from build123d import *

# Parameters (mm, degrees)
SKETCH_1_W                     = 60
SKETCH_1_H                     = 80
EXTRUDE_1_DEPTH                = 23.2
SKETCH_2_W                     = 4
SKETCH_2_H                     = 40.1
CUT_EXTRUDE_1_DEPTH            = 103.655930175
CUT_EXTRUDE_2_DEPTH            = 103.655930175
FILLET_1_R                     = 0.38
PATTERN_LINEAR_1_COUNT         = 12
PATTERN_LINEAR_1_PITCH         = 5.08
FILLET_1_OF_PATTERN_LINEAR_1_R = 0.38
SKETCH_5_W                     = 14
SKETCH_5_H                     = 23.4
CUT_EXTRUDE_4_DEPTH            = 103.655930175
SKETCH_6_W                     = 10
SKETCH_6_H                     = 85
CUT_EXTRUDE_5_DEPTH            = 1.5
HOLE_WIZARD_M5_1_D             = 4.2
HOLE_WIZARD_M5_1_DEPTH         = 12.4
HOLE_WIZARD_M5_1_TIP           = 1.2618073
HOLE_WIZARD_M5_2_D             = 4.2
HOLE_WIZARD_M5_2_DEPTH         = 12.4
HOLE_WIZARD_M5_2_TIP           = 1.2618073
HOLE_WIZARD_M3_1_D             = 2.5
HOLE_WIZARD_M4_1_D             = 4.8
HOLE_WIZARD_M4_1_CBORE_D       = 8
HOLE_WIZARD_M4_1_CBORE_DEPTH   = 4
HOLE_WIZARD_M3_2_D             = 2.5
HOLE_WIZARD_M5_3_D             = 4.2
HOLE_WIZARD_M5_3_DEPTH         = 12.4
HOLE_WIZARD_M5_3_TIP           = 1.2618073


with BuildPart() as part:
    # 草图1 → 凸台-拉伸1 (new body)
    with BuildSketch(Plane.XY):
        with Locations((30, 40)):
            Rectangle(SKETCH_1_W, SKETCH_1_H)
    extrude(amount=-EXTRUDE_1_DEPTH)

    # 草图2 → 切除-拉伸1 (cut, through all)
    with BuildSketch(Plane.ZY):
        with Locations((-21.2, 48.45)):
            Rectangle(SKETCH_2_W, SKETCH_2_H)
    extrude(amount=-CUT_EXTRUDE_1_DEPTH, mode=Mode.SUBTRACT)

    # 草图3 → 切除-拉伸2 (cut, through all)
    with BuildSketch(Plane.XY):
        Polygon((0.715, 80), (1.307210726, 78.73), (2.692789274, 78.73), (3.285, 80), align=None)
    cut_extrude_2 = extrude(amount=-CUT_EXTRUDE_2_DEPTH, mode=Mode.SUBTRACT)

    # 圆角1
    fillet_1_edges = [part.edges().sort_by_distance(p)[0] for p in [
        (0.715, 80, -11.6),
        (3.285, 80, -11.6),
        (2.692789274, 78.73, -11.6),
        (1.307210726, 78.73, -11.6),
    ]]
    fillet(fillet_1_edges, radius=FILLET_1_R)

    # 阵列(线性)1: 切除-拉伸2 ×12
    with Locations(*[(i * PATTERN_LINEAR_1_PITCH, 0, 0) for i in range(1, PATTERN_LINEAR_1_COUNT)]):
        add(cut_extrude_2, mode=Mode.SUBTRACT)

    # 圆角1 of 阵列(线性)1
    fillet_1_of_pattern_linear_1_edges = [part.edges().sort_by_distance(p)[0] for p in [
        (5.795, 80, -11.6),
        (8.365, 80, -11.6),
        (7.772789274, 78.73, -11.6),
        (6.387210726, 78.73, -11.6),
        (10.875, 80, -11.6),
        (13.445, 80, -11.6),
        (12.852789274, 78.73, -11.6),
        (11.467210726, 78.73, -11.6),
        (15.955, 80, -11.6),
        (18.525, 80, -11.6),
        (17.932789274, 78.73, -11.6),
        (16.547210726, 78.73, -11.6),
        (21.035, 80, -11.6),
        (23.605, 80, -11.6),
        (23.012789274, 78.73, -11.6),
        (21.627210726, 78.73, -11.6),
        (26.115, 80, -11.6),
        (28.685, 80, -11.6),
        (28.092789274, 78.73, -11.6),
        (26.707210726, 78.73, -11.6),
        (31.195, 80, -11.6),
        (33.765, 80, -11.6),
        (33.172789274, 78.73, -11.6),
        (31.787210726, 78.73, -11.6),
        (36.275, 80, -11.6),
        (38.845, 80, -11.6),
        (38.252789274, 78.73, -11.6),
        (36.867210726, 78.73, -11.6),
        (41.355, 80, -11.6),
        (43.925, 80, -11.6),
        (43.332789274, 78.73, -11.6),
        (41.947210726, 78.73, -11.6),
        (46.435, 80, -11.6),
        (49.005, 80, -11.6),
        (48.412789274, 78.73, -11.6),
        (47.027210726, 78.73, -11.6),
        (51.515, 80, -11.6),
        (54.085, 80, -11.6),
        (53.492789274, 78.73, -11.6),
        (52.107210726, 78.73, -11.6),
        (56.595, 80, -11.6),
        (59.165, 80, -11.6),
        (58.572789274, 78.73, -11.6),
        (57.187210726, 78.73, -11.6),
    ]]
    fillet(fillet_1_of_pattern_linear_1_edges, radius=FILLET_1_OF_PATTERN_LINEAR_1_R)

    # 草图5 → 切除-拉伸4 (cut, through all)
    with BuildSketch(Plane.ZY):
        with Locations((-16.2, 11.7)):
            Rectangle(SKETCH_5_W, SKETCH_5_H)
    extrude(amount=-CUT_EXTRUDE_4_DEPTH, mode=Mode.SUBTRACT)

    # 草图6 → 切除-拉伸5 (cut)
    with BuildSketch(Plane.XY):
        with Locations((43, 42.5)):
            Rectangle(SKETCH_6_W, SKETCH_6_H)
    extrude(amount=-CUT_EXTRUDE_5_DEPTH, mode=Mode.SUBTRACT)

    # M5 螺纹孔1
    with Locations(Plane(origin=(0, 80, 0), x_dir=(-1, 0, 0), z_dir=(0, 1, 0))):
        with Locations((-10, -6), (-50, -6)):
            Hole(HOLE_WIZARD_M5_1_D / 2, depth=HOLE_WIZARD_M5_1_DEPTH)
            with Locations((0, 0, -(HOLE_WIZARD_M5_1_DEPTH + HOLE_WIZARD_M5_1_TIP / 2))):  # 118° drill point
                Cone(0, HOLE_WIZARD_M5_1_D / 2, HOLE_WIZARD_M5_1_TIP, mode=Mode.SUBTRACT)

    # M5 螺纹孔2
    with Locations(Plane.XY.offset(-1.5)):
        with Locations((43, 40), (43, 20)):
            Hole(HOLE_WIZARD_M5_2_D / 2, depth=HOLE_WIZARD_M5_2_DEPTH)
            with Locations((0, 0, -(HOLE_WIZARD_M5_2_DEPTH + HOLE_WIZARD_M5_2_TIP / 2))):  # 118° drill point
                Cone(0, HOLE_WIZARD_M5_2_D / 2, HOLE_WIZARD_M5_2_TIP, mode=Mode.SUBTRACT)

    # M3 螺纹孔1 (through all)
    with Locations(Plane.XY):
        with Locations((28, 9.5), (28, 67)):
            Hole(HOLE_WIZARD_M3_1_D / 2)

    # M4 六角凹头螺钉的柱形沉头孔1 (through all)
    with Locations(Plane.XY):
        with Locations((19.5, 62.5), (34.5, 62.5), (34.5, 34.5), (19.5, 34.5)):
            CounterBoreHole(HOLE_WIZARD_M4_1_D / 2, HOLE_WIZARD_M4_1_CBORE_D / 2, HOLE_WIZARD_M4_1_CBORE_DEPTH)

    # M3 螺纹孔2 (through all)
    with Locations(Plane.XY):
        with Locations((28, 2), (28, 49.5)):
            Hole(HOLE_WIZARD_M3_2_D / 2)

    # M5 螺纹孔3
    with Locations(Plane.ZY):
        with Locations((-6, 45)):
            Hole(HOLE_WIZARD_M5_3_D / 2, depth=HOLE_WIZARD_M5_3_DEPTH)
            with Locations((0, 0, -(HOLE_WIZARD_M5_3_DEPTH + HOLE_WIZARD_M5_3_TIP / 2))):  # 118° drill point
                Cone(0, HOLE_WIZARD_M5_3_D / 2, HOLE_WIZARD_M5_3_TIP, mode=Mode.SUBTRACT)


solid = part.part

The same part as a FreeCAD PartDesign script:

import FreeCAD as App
import Part
import Sketcher
Q = App.Units.Quantity


def edges_at(feature, points):
    """Names of the edges that pass closest to the given points."""
    edges = feature.Shape.Edges
    near = lambda p: min(range(len(edges)), key=lambda i: edges[i].distToShape(Part.Vertex(*p))[0])
    return sorted({f"Edge{near(p) + 1}" for p in points})

doc = App.newDocument("Part")
params = doc.addObject("Spreadsheet::Sheet", "Params")
for row, (alias, value) in enumerate([
    ("sketch1_width", "60 mm"),
    ("sketch1_height", "80 mm"),
    ("pad1_length", "23.2 mm"),
    ("sketch2_height", "4 mm"),
    ("sketch2_width", "40.1 mm"),
    ("sketch3_width", "2.57 mm"),
    ("fillet_radius", "0.38 mm"),
    ("linearpattern_pitch", "5.08 mm"),
    ("fillet2_radius", "0.38 mm"),
    ("sketch4_height", "14 mm"),
    ("sketch4_width", "23.4 mm"),
    ("sketch5_width", "10 mm"),
    ("sketch5_height", "85 mm"),
    ("pocket4_length", "1.5 mm"),
    ("sketch6_diameter", "4.2 mm"),
    ("hole_diameter", "4.2 mm"),
    ("hole_depth", "12.4 mm"),
    ("sketch7_diameter", "4.2 mm"),
    ("hole2_diameter", "4.2 mm"),
    ("hole2_depth", "12.4 mm"),
    ("sketch8_diameter", "2.5 mm"),
    ("hole3_diameter", "2.5 mm"),
    ("sketch9_diameter", "4.8 mm"),
    ("hole4_diameter", "4.8 mm"),
    ("hole4_cbore_diameter", "8 mm"),
    ("hole4_cbore_depth", "4 mm"),
    ("sketch10_diameter", "2.5 mm"),
    ("hole5_diameter", "2.5 mm"),
    ("sketch11_diameter", "4.2 mm"),
    ("hole6_diameter", "4.2 mm"),
    ("hole6_depth", "12.4 mm"),
], start=1):
    params.set(f"A{row}", alias)
    params.set(f"B{row}", "=" + value)
    params.setAlias(f"B{row}", alias)

body = doc.addObject("PartDesign::Body", "Body")

sketch1 = doc.addObject("Sketcher::SketchObject", "Sketch")
body.addObject(sketch1)
sketch1.AttachmentSupport = (doc.XY_Plane, [""])
sketch1.MapMode = "FlatFace"
sketch1.addGeometry(Part.LineSegment(App.Vector(0, 80, 0), App.Vector(0, 0, 0)), False)
sketch1.addGeometry(Part.LineSegment(App.Vector(0, 0, 0), App.Vector(60, 0, 0)), False)
sketch1.addGeometry(Part.LineSegment(App.Vector(60, 0, 0), App.Vector(60, 80, 0)), False)
sketch1.addGeometry(Part.LineSegment(App.Vector(60, 80, 0), App.Vector(0, 80, 0)), False)
sketch1.addConstraint(Sketcher.Constraint("Coincident", 0, 2, 1, 1))
sketch1.addConstraint(Sketcher.Constraint("Coincident", 1, 2, 2, 1))
sketch1.addConstraint(Sketcher.Constraint("Coincident", 2, 2, 3, 1))
sketch1.addConstraint(Sketcher.Constraint("Coincident", 3, 2, 0, 1))
sketch1.addConstraint(Sketcher.Constraint("Vertical", 0))
sketch1.addConstraint(Sketcher.Constraint("Horizontal", 1))
sketch1.addConstraint(Sketcher.Constraint("Vertical", 2))
sketch1.addConstraint(Sketcher.Constraint("Horizontal", 3))
sketch1.addConstraint(Sketcher.Constraint("Coincident", 0, 2, -1, 1))
sketch1.addConstraint(Sketcher.Constraint("DistanceX", 1, 1, 1, 2, 60.0))
sketch1.addConstraint(Sketcher.Constraint("DistanceY", 0, 2, 0, 1, 80.0))
sketch1.setExpression("Constraints[9]", "Params.sketch1_width")
sketch1.setExpression("Constraints[10]", "Params.sketch1_height")
pad1 = doc.addObject("PartDesign::Pad", "Pad")
body.addObject(pad1)
pad1.Profile = sketch1
pad1.setExpression("Length", "Params.pad1_length")
pad1.Reversed = True

sketch2 = doc.addObject("Sketcher::SketchObject", "Sketch001")
body.addObject(sketch2)
sketch2.AttachmentSupport = (doc.YZ_Plane, [""])
sketch2.MapMode = "FlatFace"
sketch2.addGeometry(Part.LineSegment(App.Vector(68.5, -23.2, 0), App.Vector(28.4, -23.2, 0)), False)
sketch2.addGeometry(Part.LineSegment(App.Vector(28.4, -23.2, 0), App.Vector(28.4, -19.2, 0)), False)
sketch2.addGeometry(Part.LineSegment(App.Vector(28.4, -19.2, 0), App.Vector(68.5, -19.2, 0)), False)
sketch2.addGeometry(Part.LineSegment(App.Vector(68.5, -19.2, 0), App.Vector(68.5, -23.2, 0)), False)
sketch2.addConstraint(Sketcher.Constraint("Coincident", 0, 2, 1, 1))
sketch2.addConstraint(Sketcher.Constraint("Coincident", 1, 2, 2, 1))
sketch2.addConstraint(Sketcher.Constraint("Coincident", 2, 2, 3, 1))
sketch2.addConstraint(Sketcher.Constraint("Coincident", 3, 2, 0, 1))
sketch2.addConstraint(Sketcher.Constraint("Horizontal", 0))
sketch2.addConstraint(Sketcher.Constraint("Vertical", 1))
sketch2.addConstraint(Sketcher.Constraint("Horizontal", 2))
sketch2.addConstraint(Sketcher.Constraint("Vertical", 3))
sketch2.addConstraint(Sketcher.Constraint("DistanceY", 1, 1, 1, 2, 4.0))
sketch2.addConstraint(Sketcher.Constraint("DistanceX", 0, 2, 0, 1, 40.1))
sketch2.addConstraint(Sketcher.Constraint("DistanceX", -1, 1, 0, 2, 28.4))
sketch2.addConstraint(Sketcher.Constraint("DistanceY", 0, 2, -1, 1, 23.2))
sketch2.setExpression("Constraints[8]", "Params.sketch2_height")
sketch2.setExpression("Constraints[9]", "Params.sketch2_width")
pocket1 = doc.addObject("PartDesign::Pocket", "Pocket")
body.addObject(pocket1)
pocket1.Profile = sketch2
pocket1.Type = "ThroughAll"
pocket1.Reversed = True

sketch3 = doc.addObject("Sketcher::SketchObject", "Sketch002")
body.addObject(sketch3)
sketch3.AttachmentSupport = (doc.XY_Plane, [""])
sketch3.MapMode = "FlatFace"
sketch3.addGeometry(Part.LineSegment(App.Vector(0.715, 80, 0), App.Vector(1.307211, 78.73, 0)), False)
sketch3.addGeometry(Part.LineSegment(App.Vector(1.307211, 78.73, 0), App.Vector(2.692789, 78.73, 0)), False)
sketch3.addGeometry(Part.LineSegment(App.Vector(2.692789, 78.73, 0), App.Vector(3.285, 80, 0)), False)
sketch3.addGeometry(Part.LineSegment(App.Vector(3.285, 80, 0), App.Vector(0.715, 80, 0)), False)
sketch3.addConstraint(Sketcher.Constraint("Coincident", 0, 2, 1, 1))
sketch3.addConstraint(Sketcher.Constraint("Coincident", 1, 2, 2, 1))
sketch3.addConstraint(Sketcher.Constraint("Coincident", 2, 2, 3, 1))
sketch3.addConstraint(Sketcher.Constraint("Coincident", 3, 2, 0, 1))
sketch3.addConstraint(Sketcher.Constraint("Horizontal", 1))
sketch3.addConstraint(Sketcher.Constraint("Horizontal", 3))
sketch3.addConstraint(Sketcher.Constraint("Equal", 0, 2))
sketch3.addConstraint(Sketcher.Constraint("Angle", 0, Q("-65 deg")))
sketch3.addConstraint(Sketcher.Constraint("DistanceY", -1, 1, 2, 2, 80.0))
sketch3.addConstraint(Sketcher.Constraint("DistanceX", 3, 2, 3, 1, 2.57))
sketch3.addConstraint(Sketcher.Constraint("DistanceY", -1, 1, 0, 2, 78.73))
sketch3.addConstraint(Sketcher.Constraint("DistanceX", -1, 1, 2, 2, 3.285))
sketch3.setExpression("Constraints[9]", "Params.sketch3_width")
pocket2 = doc.addObject("PartDesign::Pocket", "Pocket001")
body.addObject(pocket2)
pocket2.Profile = sketch3
pocket2.Type = "ThroughAll"
doc.recompute()

fillet = doc.addObject("PartDesign::Fillet", "Fillet")
body.addObject(fillet)
fillet.Base = (pocket2, edges_at(pocket2, [
    (0.715, 80, -11.6),
    (3.285, 80, -11.6),
    (2.693, 78.73, -11.6),
    (1.307, 78.73, -11.6),
]))
fillet.setExpression("Radius", "Params.fillet_radius")
doc.recompute()

linearpattern = doc.addObject("PartDesign::LinearPattern", "LinearPattern")
body.addObject(linearpattern)
linearpattern.Originals = [pocket2]
linearpattern.Direction = (doc.X_Axis, [""])
linearpattern.Mode = "offset"
linearpattern.setExpression("Offset", "Params.linearpattern_pitch")
linearpattern.Occurrences = 12
body.Tip = linearpattern
doc.recompute()

fillet2 = doc.addObject("PartDesign::Fillet", "Fillet001")
body.addObject(fillet2)
fillet2.Base = (linearpattern, edges_at(linearpattern, [
    (5.795, 80, -11.6),
    (8.365, 80, -11.6),
    (7.773, 78.73, -11.6),
    (6.387, 78.73, -11.6),
    (10.875, 80, -11.6),
    (13.445, 80, -11.6),
    (12.853, 78.73, -11.6),
    (11.467, 78.73, -11.6),
    (15.955, 80, -11.6),
    (18.525, 80, -11.6),
    (17.933, 78.73, -11.6),
    (16.547, 78.73, -11.6),
    (21.035, 80, -11.6),
    (23.605, 80, -11.6),
    (23.013, 78.73, -11.6),
    (21.627, 78.73, -11.6),
    (26.115, 80, -11.6),
    (28.685, 80, -11.6),
    (28.093, 78.73, -11.6),
    (26.707, 78.73, -11.6),
    (31.195, 80, -11.6),
    (33.765, 80, -11.6),
    (33.173, 78.73, -11.6),
    (31.787, 78.73, -11.6),
    (36.275, 80, -11.6),
    (38.845, 80, -11.6),
    (38.253, 78.73, -11.6),
    (36.867, 78.73, -11.6),
    (41.355, 80, -11.6),
    (43.925, 80, -11.6),
    (43.333, 78.73, -11.6),
    (41.947, 78.73, -11.6),
    (46.435, 80, -11.6),
    (49.005, 80, -11.6),
    (48.413, 78.73, -11.6),
    (47.027, 78.73, -11.6),
    (51.515, 80, -11.6),
    (54.085, 80, -11.6),
    (53.493, 78.73, -11.6),
    (52.107, 78.73, -11.6),
    (56.595, 80, -11.6),
    (59.165, 80, -11.6),
    (58.573, 78.73, -11.6),
    (57.187, 78.73, -11.6),
]))
fillet2.setExpression("Radius", "Params.fillet2_radius")

sketch4 = doc.addObject("Sketcher::SketchObject", "Sketch003")
body.addObject(sketch4)
sketch4.AttachmentSupport = (doc.YZ_Plane, [""])
sketch4.MapMode = "FlatFace"
sketch4.addGeometry(Part.LineSegment(App.Vector(23.4, -23.2, 0), App.Vector(0, -23.2, 0)), False)
sketch4.addGeometry(Part.LineSegment(App.Vector(0, -23.2, 0), App.Vector(0, -9.2, 0)), False)
sketch4.addGeometry(Part.LineSegment(App.Vector(0, -9.2, 0), App.Vector(23.4, -9.2, 0)), False)
sketch4.addGeometry(Part.LineSegment(App.Vector(23.4, -9.2, 0), App.Vector(23.4, -23.2, 0)), False)
sketch4.addConstraint(Sketcher.Constraint("Coincident", 0, 2, 1, 1))
sketch4.addConstraint(Sketcher.Constraint("Coincident", 1, 2, 2, 1))
sketch4.addConstraint(Sketcher.Constraint("Coincident", 2, 2, 3, 1))
sketch4.addConstraint(Sketcher.Constraint("Coincident", 3, 2, 0, 1))
sketch4.addConstraint(Sketcher.Constraint("Horizontal", 0))
sketch4.addConstraint(Sketcher.Constraint("Vertical", 1))
sketch4.addConstraint(Sketcher.Constraint("Horizontal", 2))
sketch4.addConstraint(Sketcher.Constraint("Vertical", 3))
sketch4.addConstraint(Sketcher.Constraint("PointOnObject", 0, 2, -2))
sketch4.addConstraint(Sketcher.Constraint("DistanceY", 1, 1, 1, 2, 14.0))
sketch4.addConstraint(Sketcher.Constraint("DistanceX", 0, 2, 0, 1, 23.4))
sketch4.addConstraint(Sketcher.Constraint("DistanceY", 0, 2, -1, 1, 23.2))
sketch4.setExpression("Constraints[9]", "Params.sketch4_height")
sketch4.setExpression("Constraints[10]", "Params.sketch4_width")
pocket3 = doc.addObject("PartDesign::Pocket", "Pocket002")
body.addObject(pocket3)
pocket3.Profile = sketch4
pocket3.Type = "ThroughAll"
pocket3.Reversed = True

sketch5 = doc.addObject("Sketcher::SketchObject", "Sketch004")
body.addObject(sketch5)
sketch5.AttachmentSupport = (doc.XY_Plane, [""])
sketch5.MapMode = "FlatFace"
sketch5.addGeometry(Part.LineSegment(App.Vector(38, 85, 0), App.Vector(38, 0, 0)), False)
sketch5.addGeometry(Part.LineSegment(App.Vector(38, 0, 0), App.Vector(48, 0, 0)), False)
sketch5.addGeometry(Part.LineSegment(App.Vector(48, 0, 0), App.Vector(48, 85, 0)), False)
sketch5.addGeometry(Part.LineSegment(App.Vector(48, 85, 0), App.Vector(38, 85, 0)), False)
sketch5.addConstraint(Sketcher.Constraint("Coincident", 0, 2, 1, 1))
sketch5.addConstraint(Sketcher.Constraint("Coincident", 1, 2, 2, 1))
sketch5.addConstraint(Sketcher.Constraint("Coincident", 2, 2, 3, 1))
sketch5.addConstraint(Sketcher.Constraint("Coincident", 3, 2, 0, 1))
sketch5.addConstraint(Sketcher.Constraint("Vertical", 0))
sketch5.addConstraint(Sketcher.Constraint("Horizontal", 1))
sketch5.addConstraint(Sketcher.Constraint("Vertical", 2))
sketch5.addConstraint(Sketcher.Constraint("Horizontal", 3))
sketch5.addConstraint(Sketcher.Constraint("PointOnObject", 0, 2, -1))
sketch5.addConstraint(Sketcher.Constraint("DistanceX", 1, 1, 1, 2, 10.0))
sketch5.addConstraint(Sketcher.Constraint("DistanceY", 0, 2, 0, 1, 85.0))
sketch5.addConstraint(Sketcher.Constraint("DistanceX", -1, 1, 0, 2, 38.0))
sketch5.setExpression("Constraints[9]", "Params.sketch5_width")
sketch5.setExpression("Constraints[10]", "Params.sketch5_height")
pocket4 = doc.addObject("PartDesign::Pocket", "Pocket003")
body.addObject(pocket4)
pocket4.Profile = sketch5
pocket4.setExpression("Length", "Params.pocket4_length")

sketch6 = doc.addObject("Sketcher::SketchObject", "Sketch005")
body.addObject(sketch6)
sketch6.AttachmentSupport = (doc.XZ_Plane, [""])
sketch6.MapMode = "FlatFace"
sketch6.AttachmentOffset = App.Placement(App.Vector(0, 0, -80), App.Rotation())
sketch6.addGeometry(Part.Circle(App.Vector(10, -6, 0), App.Vector(0, 0, 1), 2.1), False)
sketch6.addGeometry(Part.Circle(App.Vector(50, -6, 0), App.Vector(0, 0, 1), 2.1), False)
sketch6.addConstraint(Sketcher.Constraint("Equal", 0, 1))
sketch6.addConstraint(Sketcher.Constraint("Horizontal", 0, 3, 1, 3))
sketch6.addConstraint(Sketcher.Constraint("Diameter", 0, 4.2))
sketch6.addConstraint(Sketcher.Constraint("DistanceX", -1, 1, 0, 3, 10.0))
sketch6.addConstraint(Sketcher.Constraint("DistanceY", 0, 3, -1, 1, 6.0))
sketch6.addConstraint(Sketcher.Constraint("DistanceX", -1, 1, 1, 3, 50.0))
sketch6.setExpression("Constraints[2]", "Params.sketch6_diameter")
doc.recompute()
hole = doc.addObject("PartDesign::Hole", "Hole")
body.addObject(hole)
hole.Profile = sketch6
hole.ThreadType = "None"
hole.setExpression("Diameter", "Params.hole_diameter")
hole.DepthType = "Dimension"
hole.setExpression("Depth", "Params.hole_depth")
hole.DrillPoint = "Angled"
hole.DrillPointAngle = 118
hole.Reversed = True

sketch7 = doc.addObject("Sketcher::SketchObject", "Sketch006")
body.addObject(sketch7)
sketch7.AttachmentSupport = (doc.XY_Plane, [""])
sketch7.MapMode = "FlatFace"
sketch7.AttachmentOffset = App.Placement(App.Vector(0, 0, -1.5), App.Rotation())
sketch7.addGeometry(Part.Circle(App.Vector(43, 40, 0), App.Vector(0, 0, 1), 2.1), False)
sketch7.addGeometry(Part.Circle(App.Vector(43, 20, 0), App.Vector(0, 0, 1), 2.1), False)
sketch7.addConstraint(Sketcher.Constraint("Equal", 0, 1))
sketch7.addConstraint(Sketcher.Constraint("Vertical", 0, 3, 1, 3))
sketch7.addConstraint(Sketcher.Constraint("Diameter", 0, 4.2))
sketch7.addConstraint(Sketcher.Constraint("DistanceX", -1, 1, 0, 3, 43.0))
sketch7.addConstraint(Sketcher.Constraint("DistanceY", -1, 1, 0, 3, 40.0))
sketch7.addConstraint(Sketcher.Constraint("DistanceY", -1, 1, 1, 3, 20.0))
sketch7.setExpression("Constraints[2]", "Params.sketch7_diameter")
doc.recompute()
hole2 = doc.addObject("PartDesign::Hole", "Hole001")
body.addObject(hole2)
hole2.Profile = sketch7
hole2.ThreadType = "None"
hole2.setExpression("Diameter", "Params.hole2_diameter")
hole2.DepthType = "Dimension"
hole2.setExpression("Depth", "Params.hole2_depth")
hole2.DrillPoint = "Angled"
hole2.DrillPointAngle = 118

sketch8 = doc.addObject("Sketcher::SketchObject", "Sketch007")
body.addObject(sketch8)
sketch8.AttachmentSupport = (doc.XY_Plane, [""])
sketch8.MapMode = "FlatFace"
sketch8.addGeometry(Part.Circle(App.Vector(28, 9.5, 0), App.Vector(0, 0, 1), 1.25), False)
sketch8.addGeometry(Part.Circle(App.Vector(28, 67, 0), App.Vector(0, 0, 1), 1.25), False)
sketch8.addConstraint(Sketcher.Constraint("Equal", 0, 1))
sketch8.addConstraint(Sketcher.Constraint("Vertical", 0, 3, 1, 3))
sketch8.addConstraint(Sketcher.Constraint("Diameter", 0, 2.5))
sketch8.addConstraint(Sketcher.Constraint("DistanceX", -1, 1, 0, 3, 28.0))
sketch8.addConstraint(Sketcher.Constraint("DistanceY", -1, 1, 1, 3, 67.0))
sketch8.addConstraint(Sketcher.Constraint("DistanceY", -1, 1, 0, 3, 9.5))
sketch8.setExpression("Constraints[2]", "Params.sketch8_diameter")
doc.recompute()
hole3 = doc.addObject("PartDesign::Hole", "Hole002")
body.addObject(hole3)
hole3.Profile = sketch8
hole3.ThreadType = "None"
hole3.setExpression("Diameter", "Params.hole3_diameter")
hole3.DepthType = "ThroughAll"

sketch9 = doc.addObject("Sketcher::SketchObject", "Sketch008")
body.addObject(sketch9)
sketch9.AttachmentSupport = (doc.XY_Plane, [""])
sketch9.MapMode = "FlatFace"
sketch9.addGeometry(Part.Circle(App.Vector(19.5, 62.5, 0), App.Vector(0, 0, 1), 2.4), False)
sketch9.addGeometry(Part.Circle(App.Vector(34.5, 62.5, 0), App.Vector(0, 0, 1), 2.4), False)
sketch9.addGeometry(Part.Circle(App.Vector(34.5, 34.5, 0), App.Vector(0, 0, 1), 2.4), False)
sketch9.addGeometry(Part.Circle(App.Vector(19.5, 34.5, 0), App.Vector(0, 0, 1), 2.4), False)
sketch9.addConstraint(Sketcher.Constraint("Equal", 0, 1))
sketch9.addConstraint(Sketcher.Constraint("Equal", 1, 2))
sketch9.addConstraint(Sketcher.Constraint("Equal", 2, 3))
sketch9.addConstraint(Sketcher.Constraint("Horizontal", 0, 3, 1, 3))
sketch9.addConstraint(Sketcher.Constraint("Horizontal", 2, 3, 3, 3))
sketch9.addConstraint(Sketcher.Constraint("Vertical", 1, 3, 2, 3))
sketch9.addConstraint(Sketcher.Constraint("Vertical", 0, 3, 3, 3))
sketch9.addConstraint(Sketcher.Constraint("Diameter", 0, 4.8))
sketch9.addConstraint(Sketcher.Constraint("DistanceX", 0, 3, 1, 3, 15.0))
sketch9.addConstraint(Sketcher.Constraint("DistanceY", 2, 3, 1, 3, 28.0))
sketch9.addConstraint(Sketcher.Constraint("DistanceX", -1, 1, 0, 3, 19.5))
sketch9.addConstraint(Sketcher.Constraint("DistanceY", -1, 1, 0, 3, 62.5))
sketch9.setExpression("Constraints[7]", "Params.sketch9_diameter")
doc.recompute()
hole4 = doc.addObject("PartDesign::Hole", "Hole003")
body.addObject(hole4)
hole4.Profile = sketch9
hole4.ThreadType = "None"
hole4.setExpression("Diameter", "Params.hole4_diameter")
hole4.DepthType = "ThroughAll"
hole4.HoleCutType = "Counterbore"
hole4.setExpression("HoleCutDiameter", "Params.hole4_cbore_diameter")
hole4.setExpression("HoleCutDepth", "Params.hole4_cbore_depth")

sketch10 = doc.addObject("Sketcher::SketchObject", "Sketch009")
body.addObject(sketch10)
sketch10.AttachmentSupport = (doc.XY_Plane, [""])
sketch10.MapMode = "FlatFace"
sketch10.addGeometry(Part.Circle(App.Vector(28, 2, 0), App.Vector(0, 0, 1), 1.25), False)
sketch10.addGeometry(Part.Circle(App.Vector(28, 49.5, 0), App.Vector(0, 0, 1), 1.25), False)
sketch10.addConstraint(Sketcher.Constraint("Equal", 0, 1))
sketch10.addConstraint(Sketcher.Constraint("Vertical", 0, 3, 1, 3))
sketch10.addConstraint(Sketcher.Constraint("Diameter", 0, 2.5))
sketch10.addConstraint(Sketcher.Constraint("DistanceX", -1, 1, 0, 3, 28.0))
sketch10.addConstraint(Sketcher.Constraint("DistanceY", -1, 1, 0, 3, 2.0))
sketch10.addConstraint(Sketcher.Constraint("DistanceY", -1, 1, 1, 3, 49.5))
sketch10.setExpression("Constraints[2]", "Params.sketch10_diameter")
doc.recompute()
hole5 = doc.addObject("PartDesign::Hole", "Hole004")
body.addObject(hole5)
hole5.Profile = sketch10
hole5.ThreadType = "None"
hole5.setExpression("Diameter", "Params.hole5_diameter")
hole5.DepthType = "ThroughAll"

sketch11 = doc.addObject("Sketcher::SketchObject", "Sketch010")
body.addObject(sketch11)
sketch11.AttachmentSupport = (doc.YZ_Plane, [""])
sketch11.MapMode = "FlatFace"
sketch11.addGeometry(Part.Circle(App.Vector(45, -6, 0), App.Vector(0, 0, 1), 2.1), False)
sketch11.addConstraint(Sketcher.Constraint("Diameter", 0, 4.2))
sketch11.addConstraint(Sketcher.Constraint("DistanceX", -1, 1, 0, 3, 45.0))
sketch11.addConstraint(Sketcher.Constraint("DistanceY", 0, 3, -1, 1, 6.0))
sketch11.setExpression("Constraints[0]", "Params.sketch11_diameter")
doc.recompute()
hole6 = doc.addObject("PartDesign::Hole", "Hole005")
body.addObject(hole6)
hole6.Profile = sketch11
hole6.ThreadType = "None"
hole6.setExpression("Diameter", "Params.hole6_diameter")
hole6.DepthType = "Dimension"
hole6.setExpression("Depth", "Params.hole6_depth")
hole6.DrillPoint = "Angled"
hole6.DrillPointAngle = 118
hole6.Reversed = True

doc.recompute()
